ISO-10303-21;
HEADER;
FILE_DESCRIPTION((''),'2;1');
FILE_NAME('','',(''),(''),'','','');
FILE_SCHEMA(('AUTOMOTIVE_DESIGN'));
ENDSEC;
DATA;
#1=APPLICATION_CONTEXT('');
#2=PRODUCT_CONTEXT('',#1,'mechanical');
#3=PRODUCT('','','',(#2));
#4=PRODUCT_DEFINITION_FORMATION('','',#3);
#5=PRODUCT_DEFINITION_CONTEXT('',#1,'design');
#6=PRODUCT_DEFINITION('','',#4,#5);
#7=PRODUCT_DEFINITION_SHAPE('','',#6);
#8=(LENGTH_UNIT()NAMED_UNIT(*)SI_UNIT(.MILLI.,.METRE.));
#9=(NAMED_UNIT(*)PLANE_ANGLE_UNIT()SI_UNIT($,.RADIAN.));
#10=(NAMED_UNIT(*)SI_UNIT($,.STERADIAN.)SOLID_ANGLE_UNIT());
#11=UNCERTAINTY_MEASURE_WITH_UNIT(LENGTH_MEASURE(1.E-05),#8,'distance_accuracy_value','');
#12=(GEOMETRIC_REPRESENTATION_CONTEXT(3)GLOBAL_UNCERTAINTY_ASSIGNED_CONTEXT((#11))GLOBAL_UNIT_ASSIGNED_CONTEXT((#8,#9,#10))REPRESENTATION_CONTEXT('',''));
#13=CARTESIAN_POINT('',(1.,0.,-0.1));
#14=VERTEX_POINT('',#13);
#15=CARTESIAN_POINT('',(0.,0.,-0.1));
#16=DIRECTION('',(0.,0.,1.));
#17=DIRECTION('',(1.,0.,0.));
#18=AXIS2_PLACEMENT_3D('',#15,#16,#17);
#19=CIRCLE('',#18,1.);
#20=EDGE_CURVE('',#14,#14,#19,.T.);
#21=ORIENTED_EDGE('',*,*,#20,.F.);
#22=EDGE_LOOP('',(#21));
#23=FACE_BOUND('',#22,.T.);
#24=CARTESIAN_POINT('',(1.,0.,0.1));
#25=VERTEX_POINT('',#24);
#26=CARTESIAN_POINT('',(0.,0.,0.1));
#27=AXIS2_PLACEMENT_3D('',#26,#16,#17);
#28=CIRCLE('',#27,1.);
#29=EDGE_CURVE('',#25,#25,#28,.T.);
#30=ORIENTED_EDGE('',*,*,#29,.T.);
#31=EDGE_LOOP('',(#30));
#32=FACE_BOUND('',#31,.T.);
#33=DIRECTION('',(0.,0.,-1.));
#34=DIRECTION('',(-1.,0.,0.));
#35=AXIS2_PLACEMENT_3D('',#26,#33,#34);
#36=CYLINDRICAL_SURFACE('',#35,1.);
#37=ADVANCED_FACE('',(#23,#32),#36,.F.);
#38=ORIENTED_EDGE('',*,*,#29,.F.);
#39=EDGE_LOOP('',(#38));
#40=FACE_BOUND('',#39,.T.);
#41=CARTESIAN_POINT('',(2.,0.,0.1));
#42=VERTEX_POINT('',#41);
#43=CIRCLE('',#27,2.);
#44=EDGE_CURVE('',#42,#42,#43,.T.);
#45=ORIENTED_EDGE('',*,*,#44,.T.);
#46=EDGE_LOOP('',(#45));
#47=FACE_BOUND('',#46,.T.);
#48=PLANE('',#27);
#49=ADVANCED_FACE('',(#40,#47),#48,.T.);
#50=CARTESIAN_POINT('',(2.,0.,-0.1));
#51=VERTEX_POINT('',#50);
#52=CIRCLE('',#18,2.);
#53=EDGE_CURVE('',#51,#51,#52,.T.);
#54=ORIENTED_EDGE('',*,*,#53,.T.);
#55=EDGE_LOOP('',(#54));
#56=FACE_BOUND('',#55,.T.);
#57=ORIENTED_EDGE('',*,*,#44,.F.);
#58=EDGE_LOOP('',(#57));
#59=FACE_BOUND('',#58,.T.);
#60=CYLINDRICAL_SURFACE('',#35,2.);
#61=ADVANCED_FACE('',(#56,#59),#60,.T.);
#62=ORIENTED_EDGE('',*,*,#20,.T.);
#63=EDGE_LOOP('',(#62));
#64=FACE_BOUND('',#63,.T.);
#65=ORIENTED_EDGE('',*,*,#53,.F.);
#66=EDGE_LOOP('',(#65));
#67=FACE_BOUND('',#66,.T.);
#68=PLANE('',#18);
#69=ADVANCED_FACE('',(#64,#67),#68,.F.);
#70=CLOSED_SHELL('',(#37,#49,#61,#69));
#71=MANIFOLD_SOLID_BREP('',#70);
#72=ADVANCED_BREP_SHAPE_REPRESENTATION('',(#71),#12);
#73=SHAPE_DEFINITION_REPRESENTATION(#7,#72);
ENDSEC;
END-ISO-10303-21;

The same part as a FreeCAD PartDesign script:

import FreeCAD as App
import Part
import Sketcher

doc = App.newDocument("Part")
body = doc.addObject("PartDesign::Body", "Body")

# Sketch on XY plane
sketch1 = doc.addObject("Sketcher::SketchObject", "Sketch")
body.addObject(sketch1)
sketch1.AttachmentSupport = (doc.XY_Plane, [""])
sketch1.MapMode = "FlatFace"
sketch1.addGeometry([
    Part.Circle(App.Vector(0, 0, 0), App.Vector(0, 0, 1), 2),
    Part.Circle(App.Vector(0, 0, 0), App.Vector(0, 0, 1), 1),
], False)
sketch1.addConstraint([
    Sketcher.Constraint("Coincident", 0, 3, -1, 1),
    Sketcher.Constraint("Coincident", 1, 3, -1, 1),
    Sketcher.Constraint("Diameter", 0, 4.0),
    Sketcher.Constraint("Diameter", 1, 2.0),
])
pad1 = doc.addObject("PartDesign::Pad", "Pad")
body.addObject(pad1)
pad1.Profile = sketch1
pad1.Length = 0.2
pad1.Midplane = True

doc.recompute()
